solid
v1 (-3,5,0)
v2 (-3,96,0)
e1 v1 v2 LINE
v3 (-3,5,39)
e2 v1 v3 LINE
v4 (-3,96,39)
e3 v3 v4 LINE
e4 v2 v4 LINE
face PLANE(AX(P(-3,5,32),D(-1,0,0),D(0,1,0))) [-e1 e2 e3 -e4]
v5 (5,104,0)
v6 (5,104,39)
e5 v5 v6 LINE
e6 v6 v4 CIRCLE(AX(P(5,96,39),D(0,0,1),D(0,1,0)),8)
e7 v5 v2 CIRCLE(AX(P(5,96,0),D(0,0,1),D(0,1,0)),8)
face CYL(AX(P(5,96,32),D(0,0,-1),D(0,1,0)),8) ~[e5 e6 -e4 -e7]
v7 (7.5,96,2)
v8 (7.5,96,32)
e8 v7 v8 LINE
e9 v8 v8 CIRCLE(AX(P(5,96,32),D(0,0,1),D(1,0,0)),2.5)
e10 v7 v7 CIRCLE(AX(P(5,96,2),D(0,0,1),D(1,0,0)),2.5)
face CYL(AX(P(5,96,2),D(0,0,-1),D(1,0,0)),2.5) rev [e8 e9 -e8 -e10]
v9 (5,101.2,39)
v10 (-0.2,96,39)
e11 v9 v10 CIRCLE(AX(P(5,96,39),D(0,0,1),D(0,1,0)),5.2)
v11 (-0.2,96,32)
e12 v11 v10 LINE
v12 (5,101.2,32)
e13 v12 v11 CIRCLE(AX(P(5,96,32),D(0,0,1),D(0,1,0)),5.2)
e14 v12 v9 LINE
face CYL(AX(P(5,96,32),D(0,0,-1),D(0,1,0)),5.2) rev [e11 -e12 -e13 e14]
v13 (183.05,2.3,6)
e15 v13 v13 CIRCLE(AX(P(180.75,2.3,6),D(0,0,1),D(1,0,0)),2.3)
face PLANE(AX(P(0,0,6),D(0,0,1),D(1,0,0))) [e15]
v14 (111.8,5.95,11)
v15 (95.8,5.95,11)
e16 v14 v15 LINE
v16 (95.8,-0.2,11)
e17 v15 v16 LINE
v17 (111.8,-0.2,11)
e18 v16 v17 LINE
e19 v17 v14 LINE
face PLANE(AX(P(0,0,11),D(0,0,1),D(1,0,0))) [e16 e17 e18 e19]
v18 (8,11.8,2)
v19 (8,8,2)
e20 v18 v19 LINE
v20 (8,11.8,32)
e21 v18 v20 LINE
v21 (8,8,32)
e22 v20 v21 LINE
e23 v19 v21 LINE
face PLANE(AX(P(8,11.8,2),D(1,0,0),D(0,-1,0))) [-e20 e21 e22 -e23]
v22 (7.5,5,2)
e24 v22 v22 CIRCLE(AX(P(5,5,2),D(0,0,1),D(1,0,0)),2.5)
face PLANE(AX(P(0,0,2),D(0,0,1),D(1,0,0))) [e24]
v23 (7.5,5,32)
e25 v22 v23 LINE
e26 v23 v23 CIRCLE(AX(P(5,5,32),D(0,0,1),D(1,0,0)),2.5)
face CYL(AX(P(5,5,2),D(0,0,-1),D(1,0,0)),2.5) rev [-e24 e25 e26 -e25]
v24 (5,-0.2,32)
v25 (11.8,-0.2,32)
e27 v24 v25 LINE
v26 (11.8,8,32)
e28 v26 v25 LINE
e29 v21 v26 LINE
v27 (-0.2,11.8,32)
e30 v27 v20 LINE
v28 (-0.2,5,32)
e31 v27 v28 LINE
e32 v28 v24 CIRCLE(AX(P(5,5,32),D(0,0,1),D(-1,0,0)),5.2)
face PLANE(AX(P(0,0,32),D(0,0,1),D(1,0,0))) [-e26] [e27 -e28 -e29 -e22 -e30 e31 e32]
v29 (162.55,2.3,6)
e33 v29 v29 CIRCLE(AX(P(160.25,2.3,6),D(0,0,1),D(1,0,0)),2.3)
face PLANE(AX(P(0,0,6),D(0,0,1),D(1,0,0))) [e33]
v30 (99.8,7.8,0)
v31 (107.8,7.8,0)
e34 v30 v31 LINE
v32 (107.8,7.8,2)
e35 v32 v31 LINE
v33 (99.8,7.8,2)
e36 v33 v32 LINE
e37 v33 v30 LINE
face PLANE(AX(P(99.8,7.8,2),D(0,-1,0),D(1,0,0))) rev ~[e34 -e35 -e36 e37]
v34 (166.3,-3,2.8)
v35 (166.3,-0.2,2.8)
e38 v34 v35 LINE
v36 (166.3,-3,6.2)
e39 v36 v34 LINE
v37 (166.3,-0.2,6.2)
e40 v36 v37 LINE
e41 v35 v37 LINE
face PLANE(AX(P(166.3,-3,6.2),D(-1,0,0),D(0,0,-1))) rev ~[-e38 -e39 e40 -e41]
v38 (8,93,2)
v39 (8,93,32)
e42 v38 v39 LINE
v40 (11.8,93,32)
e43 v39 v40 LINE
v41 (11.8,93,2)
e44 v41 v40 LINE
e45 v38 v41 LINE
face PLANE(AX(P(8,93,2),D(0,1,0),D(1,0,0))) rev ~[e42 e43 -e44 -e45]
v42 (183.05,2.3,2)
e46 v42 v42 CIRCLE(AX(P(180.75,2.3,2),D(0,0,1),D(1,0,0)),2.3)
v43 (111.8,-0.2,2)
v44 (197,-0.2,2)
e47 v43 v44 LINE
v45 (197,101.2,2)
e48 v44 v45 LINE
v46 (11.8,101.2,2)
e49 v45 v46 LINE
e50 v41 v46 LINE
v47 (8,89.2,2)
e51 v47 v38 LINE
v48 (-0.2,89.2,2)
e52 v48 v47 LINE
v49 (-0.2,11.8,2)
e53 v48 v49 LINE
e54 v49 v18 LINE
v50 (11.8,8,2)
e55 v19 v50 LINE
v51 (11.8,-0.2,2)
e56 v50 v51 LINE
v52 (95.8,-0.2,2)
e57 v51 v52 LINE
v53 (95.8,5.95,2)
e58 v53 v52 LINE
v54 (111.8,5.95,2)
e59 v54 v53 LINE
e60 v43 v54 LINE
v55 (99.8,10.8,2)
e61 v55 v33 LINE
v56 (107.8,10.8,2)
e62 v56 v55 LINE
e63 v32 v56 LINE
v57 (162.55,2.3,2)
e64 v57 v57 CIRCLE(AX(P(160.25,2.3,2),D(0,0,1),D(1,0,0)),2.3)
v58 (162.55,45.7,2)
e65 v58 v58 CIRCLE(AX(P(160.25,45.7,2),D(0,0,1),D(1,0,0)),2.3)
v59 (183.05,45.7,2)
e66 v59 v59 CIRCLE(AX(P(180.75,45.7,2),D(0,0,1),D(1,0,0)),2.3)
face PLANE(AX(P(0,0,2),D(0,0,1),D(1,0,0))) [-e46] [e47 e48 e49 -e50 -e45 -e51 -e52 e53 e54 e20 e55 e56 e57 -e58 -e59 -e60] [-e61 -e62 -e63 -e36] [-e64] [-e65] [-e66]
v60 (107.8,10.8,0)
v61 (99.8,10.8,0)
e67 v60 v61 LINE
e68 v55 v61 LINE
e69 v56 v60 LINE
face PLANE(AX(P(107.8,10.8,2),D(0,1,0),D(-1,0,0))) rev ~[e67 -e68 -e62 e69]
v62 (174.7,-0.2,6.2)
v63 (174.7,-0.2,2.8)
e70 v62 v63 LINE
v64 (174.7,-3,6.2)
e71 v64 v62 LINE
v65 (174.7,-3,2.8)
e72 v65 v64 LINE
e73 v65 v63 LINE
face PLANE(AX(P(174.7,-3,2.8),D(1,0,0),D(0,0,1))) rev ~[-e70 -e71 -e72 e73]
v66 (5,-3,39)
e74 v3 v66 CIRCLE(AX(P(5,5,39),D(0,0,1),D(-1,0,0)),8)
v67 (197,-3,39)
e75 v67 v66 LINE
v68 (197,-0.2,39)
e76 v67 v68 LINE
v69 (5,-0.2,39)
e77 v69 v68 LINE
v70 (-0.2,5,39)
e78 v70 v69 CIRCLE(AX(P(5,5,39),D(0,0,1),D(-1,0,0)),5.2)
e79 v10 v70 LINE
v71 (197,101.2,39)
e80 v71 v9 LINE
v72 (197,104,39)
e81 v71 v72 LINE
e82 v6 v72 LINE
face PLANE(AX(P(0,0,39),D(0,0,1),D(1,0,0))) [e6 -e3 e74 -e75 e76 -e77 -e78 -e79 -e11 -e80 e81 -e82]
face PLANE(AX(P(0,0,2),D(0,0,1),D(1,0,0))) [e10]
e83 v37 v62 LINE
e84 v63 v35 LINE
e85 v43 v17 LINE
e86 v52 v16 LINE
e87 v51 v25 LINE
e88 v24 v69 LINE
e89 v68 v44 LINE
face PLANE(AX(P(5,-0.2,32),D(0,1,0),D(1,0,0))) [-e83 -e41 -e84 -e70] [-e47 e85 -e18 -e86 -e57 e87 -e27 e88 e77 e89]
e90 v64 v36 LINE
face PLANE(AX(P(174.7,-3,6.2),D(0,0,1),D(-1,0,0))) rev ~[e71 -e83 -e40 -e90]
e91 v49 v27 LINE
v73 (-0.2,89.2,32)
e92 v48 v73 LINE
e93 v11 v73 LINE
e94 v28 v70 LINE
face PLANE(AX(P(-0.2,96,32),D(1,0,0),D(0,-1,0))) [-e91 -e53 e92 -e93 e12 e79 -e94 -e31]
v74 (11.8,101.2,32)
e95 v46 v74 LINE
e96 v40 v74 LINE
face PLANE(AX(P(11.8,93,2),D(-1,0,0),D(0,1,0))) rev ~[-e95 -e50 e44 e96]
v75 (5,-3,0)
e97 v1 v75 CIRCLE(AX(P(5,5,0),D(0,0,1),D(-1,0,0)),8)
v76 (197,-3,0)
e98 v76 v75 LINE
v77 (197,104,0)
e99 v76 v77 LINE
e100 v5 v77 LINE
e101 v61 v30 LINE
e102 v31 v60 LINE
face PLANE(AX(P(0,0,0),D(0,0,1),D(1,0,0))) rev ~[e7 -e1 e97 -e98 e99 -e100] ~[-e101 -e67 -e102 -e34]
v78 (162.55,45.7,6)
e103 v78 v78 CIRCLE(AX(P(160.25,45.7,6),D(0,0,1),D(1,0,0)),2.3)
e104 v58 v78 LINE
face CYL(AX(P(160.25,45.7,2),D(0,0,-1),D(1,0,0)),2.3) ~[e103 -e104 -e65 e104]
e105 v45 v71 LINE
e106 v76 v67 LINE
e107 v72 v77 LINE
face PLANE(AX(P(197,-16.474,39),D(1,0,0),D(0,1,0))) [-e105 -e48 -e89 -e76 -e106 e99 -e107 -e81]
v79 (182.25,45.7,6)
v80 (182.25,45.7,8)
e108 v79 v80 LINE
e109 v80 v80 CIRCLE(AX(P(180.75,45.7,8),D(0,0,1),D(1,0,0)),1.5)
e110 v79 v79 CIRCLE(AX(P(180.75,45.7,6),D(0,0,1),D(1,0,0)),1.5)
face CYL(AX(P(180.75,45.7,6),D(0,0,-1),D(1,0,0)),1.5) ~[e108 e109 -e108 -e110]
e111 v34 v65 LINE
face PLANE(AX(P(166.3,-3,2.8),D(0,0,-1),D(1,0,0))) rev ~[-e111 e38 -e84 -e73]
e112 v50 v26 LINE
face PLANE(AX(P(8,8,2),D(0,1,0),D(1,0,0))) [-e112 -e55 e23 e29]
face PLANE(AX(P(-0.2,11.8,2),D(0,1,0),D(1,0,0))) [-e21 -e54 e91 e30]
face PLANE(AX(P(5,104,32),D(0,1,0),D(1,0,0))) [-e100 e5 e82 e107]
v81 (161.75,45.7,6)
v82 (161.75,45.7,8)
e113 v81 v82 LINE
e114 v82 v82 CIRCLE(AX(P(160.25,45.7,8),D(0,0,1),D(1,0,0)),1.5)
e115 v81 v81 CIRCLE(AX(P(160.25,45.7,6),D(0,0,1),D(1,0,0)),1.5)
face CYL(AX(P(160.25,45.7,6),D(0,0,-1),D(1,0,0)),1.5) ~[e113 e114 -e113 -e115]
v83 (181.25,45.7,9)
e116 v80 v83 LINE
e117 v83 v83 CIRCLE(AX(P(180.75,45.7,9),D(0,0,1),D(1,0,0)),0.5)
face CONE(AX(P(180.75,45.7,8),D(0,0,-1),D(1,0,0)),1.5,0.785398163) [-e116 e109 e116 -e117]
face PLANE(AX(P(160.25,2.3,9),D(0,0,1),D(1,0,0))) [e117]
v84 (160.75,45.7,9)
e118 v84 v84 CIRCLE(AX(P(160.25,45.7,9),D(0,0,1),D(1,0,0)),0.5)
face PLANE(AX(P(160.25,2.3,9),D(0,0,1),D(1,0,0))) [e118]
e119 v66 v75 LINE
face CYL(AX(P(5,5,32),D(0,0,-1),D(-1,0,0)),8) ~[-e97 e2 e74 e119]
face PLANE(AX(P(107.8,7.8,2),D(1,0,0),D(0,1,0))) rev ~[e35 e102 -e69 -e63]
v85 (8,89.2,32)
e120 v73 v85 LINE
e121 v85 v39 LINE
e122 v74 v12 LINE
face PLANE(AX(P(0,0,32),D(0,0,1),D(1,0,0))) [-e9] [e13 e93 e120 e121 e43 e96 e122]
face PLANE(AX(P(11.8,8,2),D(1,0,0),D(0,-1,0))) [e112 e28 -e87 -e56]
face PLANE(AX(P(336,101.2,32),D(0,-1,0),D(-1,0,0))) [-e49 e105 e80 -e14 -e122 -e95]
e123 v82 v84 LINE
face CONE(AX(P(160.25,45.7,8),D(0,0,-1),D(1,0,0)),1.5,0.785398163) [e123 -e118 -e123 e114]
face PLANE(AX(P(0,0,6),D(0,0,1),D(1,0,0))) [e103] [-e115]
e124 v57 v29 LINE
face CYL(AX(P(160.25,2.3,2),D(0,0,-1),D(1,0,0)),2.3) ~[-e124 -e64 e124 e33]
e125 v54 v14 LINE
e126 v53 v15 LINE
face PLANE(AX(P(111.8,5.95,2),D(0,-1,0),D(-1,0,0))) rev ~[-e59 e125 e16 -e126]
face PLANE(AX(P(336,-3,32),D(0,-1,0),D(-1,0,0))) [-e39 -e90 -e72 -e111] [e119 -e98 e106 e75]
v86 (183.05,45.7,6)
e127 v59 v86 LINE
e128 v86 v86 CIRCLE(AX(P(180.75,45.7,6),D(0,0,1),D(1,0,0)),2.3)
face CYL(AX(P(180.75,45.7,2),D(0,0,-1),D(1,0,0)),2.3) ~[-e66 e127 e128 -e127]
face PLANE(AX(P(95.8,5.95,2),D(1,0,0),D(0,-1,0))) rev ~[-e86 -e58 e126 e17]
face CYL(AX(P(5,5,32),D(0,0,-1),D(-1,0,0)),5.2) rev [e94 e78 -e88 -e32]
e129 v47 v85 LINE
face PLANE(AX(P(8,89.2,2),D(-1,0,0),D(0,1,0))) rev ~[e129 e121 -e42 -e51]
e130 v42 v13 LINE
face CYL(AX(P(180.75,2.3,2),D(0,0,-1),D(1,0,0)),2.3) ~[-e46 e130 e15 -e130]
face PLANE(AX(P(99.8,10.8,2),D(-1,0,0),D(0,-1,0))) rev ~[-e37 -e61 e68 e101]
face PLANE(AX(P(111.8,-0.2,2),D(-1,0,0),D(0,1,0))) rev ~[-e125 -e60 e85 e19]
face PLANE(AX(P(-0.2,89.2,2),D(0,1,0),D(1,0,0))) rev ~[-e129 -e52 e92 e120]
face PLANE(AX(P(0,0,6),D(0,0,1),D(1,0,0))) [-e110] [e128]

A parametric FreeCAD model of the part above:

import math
import FreeCAD as App
import Part
import Sketcher


def edges_at(feature, points):
    """Names of the edges that pass closest to the given points."""
    edges = feature.Shape.Edges
    near = lambda p: min(range(len(edges)), key=lambda i: edges[i].distToShape(Part.Vertex(*p))[0])
    return sorted({f"Edge{near(p) + 1}" for p in points})


def add_polygon(sketch, points):
    """Adds a closed chain of lines whose ends are joined by coincident constraints."""
    first, n = sketch.GeometryCount, len(points)
    for a, b in zip(points, points[1:] + points[:1]):
        sketch.addGeometry(Part.LineSegment(App.Vector(*a, 0), App.Vector(*b, 0)), False)
    for i in range(n):
        sketch.addConstraint(Sketcher.Constraint("Coincident", first + i, 2, first + (i + 1) % n, 1))

doc = App.newDocument("Part")
body = doc.addObject("PartDesign::Body", "Body")

# Sketch on XY plane
sketch1 = body.newObject("Sketcher::SketchObject", "Sketch")
sketch1.AttachmentSupport = (doc.getObject("XY_Plane"), [""])
sketch1.MapMode = "FlatFace"
sketch1.addGeometry([
    Part.LineSegment(App.Vector(336, 104, 0), App.Vector(5, 104, 0)),  # 0
    Part.ArcOfCircle(Part.Circle(App.Vector(5, 96, 0), App.Vector(0, 0, 1), 8), math.radians(90), math.radians(180)),  # 1
    Part.LineSegment(App.Vector(-3, 96, 0), App.Vector(-3, 5, 0)),  # 2
    Part.ArcOfCircle(Part.Circle(App.Vector(5, 5, 0), App.Vector(0, 0, 1), 8), math.radians(180), math.radians(270)),  # 3
    Part.LineSegment(App.Vector(5, -3, 0), App.Vector(336, -3, 0)),  # 4
    Part.ArcOfCircle(Part.Circle(App.Vector(336, 5, 0), App.Vector(0, 0, 1), 8), math.radians(-90), math.radians(0)),  # 5
    Part.LineSegment(App.Vector(344, 5, 0), App.Vector(344, 96, 0)),  # 6
    Part.ArcOfCircle(Part.Circle(App.Vector(336, 96, 0), App.Vector(0, 0, 1), 8), math.radians(0), math.radians(90)),  # 7
], False)
sketch1.addConstraint([
    Sketcher.Constraint("Tangent", 0, 2, 1, 1),
    Sketcher.Constraint("Tangent", 1, 2, 2, 1),
    Sketcher.Constraint("Tangent", 2, 2, 3, 1),
    Sketcher.Constraint("Tangent", 3, 2, 4, 1),
    Sketcher.Constraint("Tangent", 4, 2, 5, 1),
    Sketcher.Constraint("Tangent", 5, 2, 6, 1),
    Sketcher.Constraint("Tangent", 6, 2, 7, 1),
    Sketcher.Constraint("Tangent", 7, 2, 0, 1),
    Sketcher.Constraint("Horizontal", 0),
    Sketcher.Constraint("Vertical", 2),
    Sketcher.Constraint("Horizontal", 4),
    Sketcher.Constraint("Vertical", 6),
    Sketcher.Constraint("Equal", 1, 3),
    Sketcher.Constraint("Equal", 3, 5),
    Sketcher.Constraint("Equal", 5, 7),
    Sketcher.Constraint("DistanceX", -1, 1, 1, 3, 5.0),
    Sketcher.Constraint("DistanceY", -1, 1, 3, 3, 5.0),
    Sketcher.Constraint("DistanceX", 1, 2, -1, 1, 3.0),
    Sketcher.Constraint("DistanceX", 0, 2, 0, 1, 331.0),
    Sketcher.Constraint("DistanceY", 2, 2, 2, 1, 91.0),
])
pad1 = body.newObject("PartDesign::Pad", "Pad")
pad1.Profile = sketch1
pad1.Length = 2

# Sketch on XY plane
sketch2 = body.newObject("Sketcher::SketchObject", "Sketch001")
sketch2.AttachmentSupport = (doc.getObject("XY_Plane"), [""])
sketch2.MapMode = "FlatFace"
sketch2.AttachmentOffset = App.Placement(App.Vector(0, 0, 2), App.Rotation())
sketch2.addGeometry(Part.LineSegment(App.Vector(336, 104, 0), App.Vector(5, 104, 0)), False)  # 0
sketch2.addGeometry(Part.ArcOfCircle(Part.Circle(App.Vector(5, 96, 0), App.Vector(0, 0, 1), 8), math.radians(90), math.radians(180)), False)  # 1
sketch2.addGeometry(Part.LineSegment(App.Vector(-3, 96, 0), App.Vector(-3, 5, 0)), False)  # 2
sketch2.addGeometry(Part.ArcOfCircle(Part.Circle(App.Vector(5, 5, 0), App.Vector(0, 0, 1), 8), math.radians(180), math.radians(270)), False)  # 3
sketch2.addGeometry(Part.LineSegment(App.Vector(5, -3, 0), App.Vector(336, -3, 0)), False)  # 4
sketch2.addGeometry(Part.ArcOfCircle(Part.Circle(App.Vector(336, 5, 0), App.Vector(0, 0, 1), 8), math.radians(-90), math.radians(0)), False)  # 5
sketch2.addGeometry(Part.LineSegment(App.Vector(344, 5, 0), App.Vector(344, 96, 0)), False)  # 6
sketch2.addGeometry(Part.ArcOfCircle(Part.Circle(App.Vector(336, 96, 0), App.Vector(0, 0, 1), 8), math.radians(0), math.radians(90)), False)  # 7
add_polygon(sketch2, [(11.8, 101.2), (329.2, 101.2), (329.2, 93), (333, 93), (333, 89.2), (341.2, 89.2), (341.2, 11.8), (333, 11.8), (333, 8), (329.2, 8), (329.2, -0.2), (11.8, -0.2), (11.8, 8), (8, 8), (8, 11.8), (-0.2, 11.8), (-0.2, 89.2), (8, 89.2), (8, 93), (11.8, 93)])  # lines 8-27
sketch2.addGeometry(Part.Circle(App.Vector(336, 96, 0), App.Vector(0, 0, 1), 2.5), False)  # 28
sketch2.addGeometry(Part.Circle(App.Vector(5, 96, 0), App.Vector(0, 0, 1), 2.5), False)  # 29
sketch2.addGeometry(Part.Circle(App.Vector(5, 5, 0), App.Vector(0, 0, 1), 2.5), False)  # 30
sketch2.addGeometry(Part.Circle(App.Vector(336, 5, 0), App.Vector(0, 0, 1), 2.5), False)  # 31
sketch2.addConstraint([
    Sketcher.Constraint("Tangent", 0, 2, 1, 1),
    Sketcher.Constraint("Tangent", 1, 2, 2, 1),
    Sketcher.Constraint("Tangent", 2, 2, 3, 1),
    Sketcher.Constraint("Tangent", 3, 2, 4, 1),
    Sketcher.Constraint("Tangent", 4, 2, 5, 1),
    Sketcher.Constraint("Tangent", 5, 2, 6, 1),
    Sketcher.Constraint("Tangent", 6, 2, 7, 1),
    Sketcher.Constraint("Tangent", 7, 2, 0, 1),
    Sketcher.Constraint("Horizontal", 0),
    Sketcher.Constraint("Vertical", 2),
    Sketcher.Constraint("Horizontal", 4),
    Sketcher.Constraint("Vertical", 6),
    Sketcher.Constraint("Horizontal", 8),
    Sketcher.Constraint("Vertical", 9),
    Sketcher.Constraint("Horizontal", 10),
    Sketcher.Constraint("Vertical", 11),
    Sketcher.Constraint("Horizontal", 12),
    Sketcher.Constraint("Vertical", 13),
    Sketcher.Constraint("Horizontal", 14),
    Sketcher.Constraint("Vertical", 15),
    Sketcher.Constraint("Horizontal", 16),
    Sketcher.Constraint("Vertical", 17),
    Sketcher.Constraint("Horizontal", 18),
    Sketcher.Constraint("Vertical", 19),
    Sketcher.Constraint("Horizontal", 20),
    Sketcher.Constraint("Vertical", 21),
    Sketcher.Constraint("Horizontal", 22),
    Sketcher.Constraint("Vertical", 23),
    Sketcher.Constraint("Horizontal", 24),
    Sketcher.Constraint("Vertical", 25),
    Sketcher.Constraint("Horizontal", 26),
    Sketcher.Constraint("Vertical", 27),
    Sketcher.Constraint("Coincident", 28, 3, 7, 3),
    Sketcher.Constraint("Coincident", 29, 3, 1, 3),
    Sketcher.Constraint("Coincident", 30, 3, 3, 3),
    Sketcher.Constraint("Coincident", 31, 3, 5, 3),
    Sketcher.Constraint("Equal", 1, 3),
    Sketcher.Constraint("Equal", 3, 5),
    Sketcher.Constraint("Equal", 5, 7),
    Sketcher.Constraint("Equal", 28, 29),
    Sketcher.Constraint("Equal", 29, 30),
    Sketcher.Constraint("Equal", 30, 31),
    Sketcher.Constraint("Horizontal", 16, 2, 19, 2),
    Sketcher.Constraint("Horizontal", 14, 2, 21, 2),
    Sketcher.Constraint("Horizontal", 12, 2, 23, 2),
    Sketcher.Constraint("Horizontal", 10, 2, 25, 2),
    Sketcher.Constraint("Vertical", 11, 2, 14, 2),
    Sketcher.Constraint("Vertical", 9, 2, 16, 2),
    Sketcher.Constraint("Vertical", 21, 2, 24, 2),
    Sketcher.Constraint("Vertical", 19, 2, 26, 2),
    Sketcher.Constraint("Equal", 16, 20),
    Sketcher.Constraint("Equal", 14, 22),
    Sketcher.Constraint("Equal", 24, 9),
    Sketcher.Constraint("Equal", 26, 11),
    Sketcher.Constraint("Equal", 11, 15),
    Sketcher.Constraint("Equal", 9, 17),
    Sketcher.Constraint("Diameter", 28, 5.0),
    Sketcher.Constraint("Radius", 1, 8.0),
    Sketcher.Constraint("DistanceX", -1, 1, 1, 3, 5.0),
    Sketcher.Constraint("DistanceY", -1, 1, 3, 3, 5.0),
    Sketcher.Constraint("DistanceY", -1, 1, 15, 2, 8.0),
    Sketcher.Constraint("DistanceX", -1, 1, 20, 2, 8.0),
    Sketcher.Constraint("DistanceY", 11, 2, 8, 2, 12.0),
    Sketcher.Constraint("DistanceY", 8, 2, 7, 2, 2.8),
    Sketcher.Constraint("DistanceX", 12, 2, 6, 2, 2.8),
    Sketcher.Constraint("DistanceY", 4, 2, 17, 2, 2.8),
    Sketcher.Constraint("DistanceX", 0, 2, 0, 1, 331.0),
    Sketcher.Constraint("DistanceY", 2, 2, 2, 1, 91.0),
])
pad2 = body.newObject("PartDesign::Pad", "Pad001")
pad2.Profile = sketch2
pad2.Length = 30

# Sketch on XY plane
sketch3 = body.newObject("Sketcher::SketchObject", "Sketch002")
sketch3.AttachmentSupport = (doc.getObject("XY_Plane"), [""])
sketch3.MapMode = "FlatFace"
sketch3.AttachmentOffset = App.Placement(App.Vector(0, 0, 32), App.Rotation())
sketch3.addGeometry([
    Part.LineSegment(App.Vector(336, 104, 0), App.Vector(5, 104, 0)),  # 0
    Part.ArcOfCircle(Part.Circle(App.Vector(5, 96, 0), App.Vector(0, 0, 1), 8), math.radians(90), math.radians(180)),  # 1
    Part.LineSegment(App.Vector(-3, 96, 0), App.Vector(-3, 5, 0)),  # 2
    Part.ArcOfCircle(Part.Circle(App.Vector(5, 5, 0), App.Vector(0, 0, 1), 8), math.radians(180), math.radians(270)),  # 3
    Part.LineSegment(App.Vector(5, -3, 0), App.Vector(336, -3, 0)),  # 4
    Part.ArcOfCircle(Part.Circle(App.Vector(336, 5, 0), App.Vector(0, 0, 1), 8), math.radians(-90), math.radians(0)),  # 5
    Part.LineSegment(App.Vector(344, 5, 0), App.Vector(344, 96, 0)),  # 6
    Part.ArcOfCircle(Part.Circle(App.Vector(336, 96, 0), App.Vector(0, 0, 1), 8), math.radians(0), math.radians(90)),  # 7
    Part.LineSegment(App.Vector(5, 101.2, 0), App.Vector(336, 101.2, 0)),  # 8
    Part.ArcOfCircle(Part.Circle(App.Vector(336, 96, 0), App.Vector(0, 0, 1), 5.2), math.radians(0), math.radians(90)),  # 9
    Part.LineSegment(App.Vector(341.2, 96, 0), App.Vector(341.2, 5, 0)),  # 10
    Part.ArcOfCircle(Part.Circle(App.Vector(336, 5, 0), App.Vector(0, 0, 1), 5.2), math.radians(-90), math.radians(0)),  # 11
    Part.LineSegment(App.Vector(336, -0.2, 0), App.Vector(5, -0.2, 0)),  # 12
    Part.ArcOfCircle(Part.Circle(App.Vector(5, 5, 0), App.Vector(0, 0, 1), 5.2), math.radians(180), math.radians(270)),  # 13
    Part.LineSegment(App.Vector(-0.2, 5, 0), App.Vector(-0.2, 96, 0)),  # 14
    Part.ArcOfCircle(Part.Circle(App.Vector(5, 96, 0), App.Vector(0, 0, 1), 5.2), math.radians(90), math.radians(180)),  # 15
], False)
sketch3.addConstraint([
    Sketcher.Constraint("Tangent", 0, 2, 1, 1),
    Sketcher.Constraint("Tangent", 1, 2, 2, 1),
    Sketcher.Constraint("Tangent", 2, 2, 3, 1),
    Sketcher.Constraint("Tangent", 3, 2, 4, 1),
    Sketcher.Constraint("Tangent", 4, 2, 5, 1),
    Sketcher.Constraint("Tangent", 5, 2, 6, 1),
    Sketcher.Constraint("Tangent", 6, 2, 7, 1),
    Sketcher.Constraint("Tangent", 7, 2, 0, 1),
    Sketcher.Constraint("Tangent", 8, 2, 9, 2),
    Sketcher.Constraint("Tangent", 9, 1, 10, 1),
    Sketcher.Constraint("Tangent", 10, 2, 11, 2),
    Sketcher.Constraint("Tangent", 11, 1, 12, 1),
    Sketcher.Constraint("Tangent", 12, 2, 13, 2),
    Sketcher.Constraint("Tangent", 13, 1, 14, 1),
    Sketcher.Constraint("Tangent", 14, 2, 15, 2),
    Sketcher.Constraint("Tangent", 15, 1, 8, 1),
    Sketcher.Constraint("Horizontal", 0),
    Sketcher.Constraint("Vertical", 2),
    Sketcher.Constraint("Horizontal", 4),
    Sketcher.Constraint("Vertical", 6),
    Sketcher.Constraint("Horizontal", 8),
    Sketcher.Constraint("Vertical", 10),
    Sketcher.Constraint("Horizontal", 12),
    Sketcher.Constraint("Vertical", 14),
    Sketcher.Constraint("Coincident", 9, 3, 7, 3),
    Sketcher.Constraint("Coincident", 11, 3, 5, 3),
    Sketcher.Constraint("Coincident", 13, 3, 3, 3),
    Sketcher.Constraint("Equal", 1, 3),
    Sketcher.Constraint("Equal", 3, 5),
    Sketcher.Constraint("Equal", 5, 7),
    Sketcher.Constraint("Equal", 13, 15),
    Sketcher.Constraint("Radius", 1, 8.0),
    Sketcher.Constraint("Radius", 9, 5.2),
    Sketcher.Constraint("DistanceX", 0, 2, 0, 1, 331.0),
    Sketcher.Constraint("DistanceY", 2, 2, 2, 1, 91.0),
    Sketcher.Constraint("DistanceX", -1, 1, 1, 3, 5.0),
    Sketcher.Constraint("DistanceY", -1, 1, 1, 3, 96.0),
])
pad3 = body.newObject("PartDesign::Pad", "Pad002")
pad3.Profile = sketch3
pad3.Length = 7

# Sketch on XY plane
sketch4 = body.newObject("Sketcher::SketchObject", "Sketch003")
sketch4.AttachmentSupport = (doc.getObject("XY_Plane"), [""])
sketch4.MapMode = "FlatFace"
sketch4.AttachmentOffset = App.Placement(App.Vector(0, 0, 2), App.Rotation())
sketch4.addGeometry([
    Part.Circle(App.Vector(160.25, 45.7, 0), App.Vector(0, 0, 1), 2.3),
    Part.Circle(App.Vector(180.75, 45.7, 0), App.Vector(0, 0, 1), 2.3),
    Part.Circle(App.Vector(160.25, 2.3, 0), App.Vector(0, 0, 1), 2.3),
    Part.Circle(App.Vector(180.75, 2.3, 0), App.Vector(0, 0, 1), 2.3),
], False)
sketch4.addConstraint([
    Sketcher.Constraint("Equal", 0, 1),
    Sketcher.Constraint("Equal", 1, 2),
    Sketcher.Constraint("Equal", 2, 3),
    Sketcher.Constraint("Horizontal", 0, 3, 1, 3),
    Sketcher.Constraint("Horizontal", 2, 3, 3, 3),
    Sketcher.Constraint("Vertical", 0, 3, 2, 3),
    Sketcher.Constraint("Vertical", 1, 3, 3, 3),
    Sketcher.Constraint("Diameter", 0, 4.6),
    Sketcher.Constraint("DistanceY", -1, 1, 0, 3, 45.7),
    Sketcher.Constraint("DistanceY", -1, 1, 2, 3, 2.3),
    Sketcher.Constraint("DistanceX", 0, 3, 1, 3, 20.5),
    Sketcher.Constraint("DistanceX", -1, 1, 0, 3, 160.25),
])
pad4 = body.newObject("PartDesign::Pad", "Pad003")
pad4.Profile = sketch4
pad4.Length = 4

# Sketch on XY plane
sketch5 = body.newObject("Sketcher::SketchObject", "Sketch004")
sketch5.AttachmentSupport = (doc.getObject("XY_Plane"), [""])
sketch5.MapMode = "FlatFace"
sketch5.AttachmentOffset = App.Placement(App.Vector(0, 0, 6), App.Rotation())
sketch5.addGeometry([
    Part.Circle(App.Vector(160.25, 45.7, 0), App.Vector(0, 0, 1), 1.5),
    Part.Circle(App.Vector(180.75, 45.7, 0), App.Vector(0, 0, 1), 1.5),
], False)
sketch5.addConstraint([
    Sketcher.Constraint("Equal", 0, 1),
    Sketcher.Constraint("Horizontal", 0, 3, 1, 3),
    Sketcher.Constraint("Diameter", 0, 3.0),
    Sketcher.Constraint("DistanceY", -1, 1, 0, 3, 45.7),
    Sketcher.Constraint("DistanceX", 0, 3, 1, 3, 20.5),
    Sketcher.Constraint("DistanceX", -1, 1, 0, 3, 160.25),
])
pad5 = body.newObject("PartDesign::Pad", "Pad004")
pad5.Profile = sketch5
pad5.Length = 3
doc.recompute()

chamfer = body.newObject("PartDesign::Chamfer", "Chamfer")
chamfer.Base = (pad5, edges_at(pad5, [(158.75, 45.7, 9), (179.25, 45.7, 9)]))
chamfer.Size = 1

# Sketch on XZ plane
sketch6 = body.newObject("Sketcher::SketchObject", "Sketch005")
sketch6.AttachmentSupport = (doc.getObject("XZ_Plane"), [""])
sketch6.MapMode = "FlatFace"
sketch6.AttachmentOffset = App.Placement(App.Vector(0, 0, 3), App.Rotation())
add_polygon(sketch6, [(166.3, 6.2), (166.3, 2.8), (174.7, 2.8), (174.7, 6.2)])  # lines 0-3
sketch6.addConstraint([
    Sketcher.Constraint("Vertical", 0),
    Sketcher.Constraint("Horizontal", 1),
    Sketcher.Constraint("Vertical", 2),
    Sketcher.Constraint("Horizontal", 3),
    Sketcher.Constraint("DistanceX", 1, 1, 1, 2, 8.4),
    Sketcher.Constraint("DistanceY", 0, 2, 0, 1, 3.4),
    Sketcher.Constraint("DistanceX", -1, 1, 0, 2, 166.3),
    Sketcher.Constraint("DistanceY", -1, 1, 0, 2, 2.8),
])
pocket1 = body.newObject("PartDesign::Pocket", "Pocket")
pocket1.Profile = sketch6
pocket1.Length = 3

# Sketch on XY plane
sketch7 = body.newObject("Sketcher::SketchObject", "Sketch006")
sketch7.AttachmentSupport = (doc.getObject("XY_Plane"), [""])
sketch7.MapMode = "FlatFace"
sketch7.AttachmentOffset = App.Placement(App.Vector(0, 0, 2), App.Rotation())
add_polygon(sketch7, [(99.8, 10.8), (99.8, 7.8), (107.8, 7.8), (107.8, 10.8)])  # lines 0-3
sketch7.addConstraint([
    Sketcher.Constraint("Vertical", 0),
    Sketcher.Constraint("Horizontal", 1),
    Sketcher.Constraint("Vertical", 2),
    Sketcher.Constraint("Horizontal", 3),
    Sketcher.Constraint("DistanceX", 1, 1, 1, 2, 8.0),
    Sketcher.Constraint("DistanceY", 0, 2, 0, 1, 3.0),
    Sketcher.Constraint("DistanceX", -1, 1, 0, 2, 99.8),
    Sketcher.Constraint("DistanceY", -1, 1, 0, 2, 7.8),
])
pocket2 = body.newObject("PartDesign::Pocket", "Pocket001")
pocket2.Profile = sketch7
pocket2.Length = 3

# Sketch on XY plane
sketch8 = body.newObject("Sketcher::SketchObject", "Sketch007")
sketch8.AttachmentSupport = (doc.getObject("XY_Plane"), [""])
sketch8.MapMode = "FlatFace"
sketch8.AttachmentOffset = App.Placement(App.Vector(0, 0, 2), App.Rotation())
add_polygon(sketch8, [(95.8, 5.95), (95.8, -0.2), (111.8, -0.2), (111.8, 5.95)])  # lines 0-3
sketch8.addConstraint([
    Sketcher.Constraint("Vertical", 0),
    Sketcher.Constraint("Horizontal", 1),
    Sketcher.Constraint("Vertical", 2),
    Sketcher.Constraint("Horizontal", 3),
    Sketcher.Constraint("DistanceX", 1, 1, 1, 2, 16.0),
    Sketcher.Constraint("DistanceY", 0, 2, 0, 1, 6.15),
    Sketcher.Constraint("DistanceX", -1, 1, 0, 2, 95.8),
    Sketcher.Constraint("DistanceY", 0, 2, -1, 1, 0.2),
])
pad6 = body.newObject("PartDesign::Pad", "Pad005")
pad6.Profile = sketch8
pad6.Length = 9

# Sketch on XY plane
sketch9 = body.newObject("Sketcher::SketchObject", "Sketch008")
sketch9.AttachmentSupport = (doc.getObject("XY_Plane"), [""])
sketch9.MapMode = "FlatFace"
sketch9.AttachmentOffset = App.Placement(App.Vector(0, 0, 39), App.Rotation())
add_polygon(sketch9, [(197, 116.8419), (197, -16.474), (375.2281, -16.474), (375.2281, 116.8419)])  # lines 0-3
sketch9.addConstraint([
    Sketcher.Constraint("Vertical", 0),
    Sketcher.Constraint("Horizontal", 1),
    Sketcher.Constraint("Vertical", 2),
    Sketcher.Constraint("Horizontal", 3),
    Sketcher.Constraint("DistanceX", -1, 1, 0, 2, 197.0),
    Sketcher.Constraint("DistanceX", 1, 1, 1, 2, 178.228),
    Sketcher.Constraint("DistanceY", 0, 2, 0, 1, 133.316),
    Sketcher.Constraint("DistanceY", 0, 2, -1, 1, 16.474),
])
pocket3 = body.newObject("PartDesign::Pocket", "Pocket002")
pocket3.Profile = sketch9
pocket3.Length = 50

doc.recompute()
